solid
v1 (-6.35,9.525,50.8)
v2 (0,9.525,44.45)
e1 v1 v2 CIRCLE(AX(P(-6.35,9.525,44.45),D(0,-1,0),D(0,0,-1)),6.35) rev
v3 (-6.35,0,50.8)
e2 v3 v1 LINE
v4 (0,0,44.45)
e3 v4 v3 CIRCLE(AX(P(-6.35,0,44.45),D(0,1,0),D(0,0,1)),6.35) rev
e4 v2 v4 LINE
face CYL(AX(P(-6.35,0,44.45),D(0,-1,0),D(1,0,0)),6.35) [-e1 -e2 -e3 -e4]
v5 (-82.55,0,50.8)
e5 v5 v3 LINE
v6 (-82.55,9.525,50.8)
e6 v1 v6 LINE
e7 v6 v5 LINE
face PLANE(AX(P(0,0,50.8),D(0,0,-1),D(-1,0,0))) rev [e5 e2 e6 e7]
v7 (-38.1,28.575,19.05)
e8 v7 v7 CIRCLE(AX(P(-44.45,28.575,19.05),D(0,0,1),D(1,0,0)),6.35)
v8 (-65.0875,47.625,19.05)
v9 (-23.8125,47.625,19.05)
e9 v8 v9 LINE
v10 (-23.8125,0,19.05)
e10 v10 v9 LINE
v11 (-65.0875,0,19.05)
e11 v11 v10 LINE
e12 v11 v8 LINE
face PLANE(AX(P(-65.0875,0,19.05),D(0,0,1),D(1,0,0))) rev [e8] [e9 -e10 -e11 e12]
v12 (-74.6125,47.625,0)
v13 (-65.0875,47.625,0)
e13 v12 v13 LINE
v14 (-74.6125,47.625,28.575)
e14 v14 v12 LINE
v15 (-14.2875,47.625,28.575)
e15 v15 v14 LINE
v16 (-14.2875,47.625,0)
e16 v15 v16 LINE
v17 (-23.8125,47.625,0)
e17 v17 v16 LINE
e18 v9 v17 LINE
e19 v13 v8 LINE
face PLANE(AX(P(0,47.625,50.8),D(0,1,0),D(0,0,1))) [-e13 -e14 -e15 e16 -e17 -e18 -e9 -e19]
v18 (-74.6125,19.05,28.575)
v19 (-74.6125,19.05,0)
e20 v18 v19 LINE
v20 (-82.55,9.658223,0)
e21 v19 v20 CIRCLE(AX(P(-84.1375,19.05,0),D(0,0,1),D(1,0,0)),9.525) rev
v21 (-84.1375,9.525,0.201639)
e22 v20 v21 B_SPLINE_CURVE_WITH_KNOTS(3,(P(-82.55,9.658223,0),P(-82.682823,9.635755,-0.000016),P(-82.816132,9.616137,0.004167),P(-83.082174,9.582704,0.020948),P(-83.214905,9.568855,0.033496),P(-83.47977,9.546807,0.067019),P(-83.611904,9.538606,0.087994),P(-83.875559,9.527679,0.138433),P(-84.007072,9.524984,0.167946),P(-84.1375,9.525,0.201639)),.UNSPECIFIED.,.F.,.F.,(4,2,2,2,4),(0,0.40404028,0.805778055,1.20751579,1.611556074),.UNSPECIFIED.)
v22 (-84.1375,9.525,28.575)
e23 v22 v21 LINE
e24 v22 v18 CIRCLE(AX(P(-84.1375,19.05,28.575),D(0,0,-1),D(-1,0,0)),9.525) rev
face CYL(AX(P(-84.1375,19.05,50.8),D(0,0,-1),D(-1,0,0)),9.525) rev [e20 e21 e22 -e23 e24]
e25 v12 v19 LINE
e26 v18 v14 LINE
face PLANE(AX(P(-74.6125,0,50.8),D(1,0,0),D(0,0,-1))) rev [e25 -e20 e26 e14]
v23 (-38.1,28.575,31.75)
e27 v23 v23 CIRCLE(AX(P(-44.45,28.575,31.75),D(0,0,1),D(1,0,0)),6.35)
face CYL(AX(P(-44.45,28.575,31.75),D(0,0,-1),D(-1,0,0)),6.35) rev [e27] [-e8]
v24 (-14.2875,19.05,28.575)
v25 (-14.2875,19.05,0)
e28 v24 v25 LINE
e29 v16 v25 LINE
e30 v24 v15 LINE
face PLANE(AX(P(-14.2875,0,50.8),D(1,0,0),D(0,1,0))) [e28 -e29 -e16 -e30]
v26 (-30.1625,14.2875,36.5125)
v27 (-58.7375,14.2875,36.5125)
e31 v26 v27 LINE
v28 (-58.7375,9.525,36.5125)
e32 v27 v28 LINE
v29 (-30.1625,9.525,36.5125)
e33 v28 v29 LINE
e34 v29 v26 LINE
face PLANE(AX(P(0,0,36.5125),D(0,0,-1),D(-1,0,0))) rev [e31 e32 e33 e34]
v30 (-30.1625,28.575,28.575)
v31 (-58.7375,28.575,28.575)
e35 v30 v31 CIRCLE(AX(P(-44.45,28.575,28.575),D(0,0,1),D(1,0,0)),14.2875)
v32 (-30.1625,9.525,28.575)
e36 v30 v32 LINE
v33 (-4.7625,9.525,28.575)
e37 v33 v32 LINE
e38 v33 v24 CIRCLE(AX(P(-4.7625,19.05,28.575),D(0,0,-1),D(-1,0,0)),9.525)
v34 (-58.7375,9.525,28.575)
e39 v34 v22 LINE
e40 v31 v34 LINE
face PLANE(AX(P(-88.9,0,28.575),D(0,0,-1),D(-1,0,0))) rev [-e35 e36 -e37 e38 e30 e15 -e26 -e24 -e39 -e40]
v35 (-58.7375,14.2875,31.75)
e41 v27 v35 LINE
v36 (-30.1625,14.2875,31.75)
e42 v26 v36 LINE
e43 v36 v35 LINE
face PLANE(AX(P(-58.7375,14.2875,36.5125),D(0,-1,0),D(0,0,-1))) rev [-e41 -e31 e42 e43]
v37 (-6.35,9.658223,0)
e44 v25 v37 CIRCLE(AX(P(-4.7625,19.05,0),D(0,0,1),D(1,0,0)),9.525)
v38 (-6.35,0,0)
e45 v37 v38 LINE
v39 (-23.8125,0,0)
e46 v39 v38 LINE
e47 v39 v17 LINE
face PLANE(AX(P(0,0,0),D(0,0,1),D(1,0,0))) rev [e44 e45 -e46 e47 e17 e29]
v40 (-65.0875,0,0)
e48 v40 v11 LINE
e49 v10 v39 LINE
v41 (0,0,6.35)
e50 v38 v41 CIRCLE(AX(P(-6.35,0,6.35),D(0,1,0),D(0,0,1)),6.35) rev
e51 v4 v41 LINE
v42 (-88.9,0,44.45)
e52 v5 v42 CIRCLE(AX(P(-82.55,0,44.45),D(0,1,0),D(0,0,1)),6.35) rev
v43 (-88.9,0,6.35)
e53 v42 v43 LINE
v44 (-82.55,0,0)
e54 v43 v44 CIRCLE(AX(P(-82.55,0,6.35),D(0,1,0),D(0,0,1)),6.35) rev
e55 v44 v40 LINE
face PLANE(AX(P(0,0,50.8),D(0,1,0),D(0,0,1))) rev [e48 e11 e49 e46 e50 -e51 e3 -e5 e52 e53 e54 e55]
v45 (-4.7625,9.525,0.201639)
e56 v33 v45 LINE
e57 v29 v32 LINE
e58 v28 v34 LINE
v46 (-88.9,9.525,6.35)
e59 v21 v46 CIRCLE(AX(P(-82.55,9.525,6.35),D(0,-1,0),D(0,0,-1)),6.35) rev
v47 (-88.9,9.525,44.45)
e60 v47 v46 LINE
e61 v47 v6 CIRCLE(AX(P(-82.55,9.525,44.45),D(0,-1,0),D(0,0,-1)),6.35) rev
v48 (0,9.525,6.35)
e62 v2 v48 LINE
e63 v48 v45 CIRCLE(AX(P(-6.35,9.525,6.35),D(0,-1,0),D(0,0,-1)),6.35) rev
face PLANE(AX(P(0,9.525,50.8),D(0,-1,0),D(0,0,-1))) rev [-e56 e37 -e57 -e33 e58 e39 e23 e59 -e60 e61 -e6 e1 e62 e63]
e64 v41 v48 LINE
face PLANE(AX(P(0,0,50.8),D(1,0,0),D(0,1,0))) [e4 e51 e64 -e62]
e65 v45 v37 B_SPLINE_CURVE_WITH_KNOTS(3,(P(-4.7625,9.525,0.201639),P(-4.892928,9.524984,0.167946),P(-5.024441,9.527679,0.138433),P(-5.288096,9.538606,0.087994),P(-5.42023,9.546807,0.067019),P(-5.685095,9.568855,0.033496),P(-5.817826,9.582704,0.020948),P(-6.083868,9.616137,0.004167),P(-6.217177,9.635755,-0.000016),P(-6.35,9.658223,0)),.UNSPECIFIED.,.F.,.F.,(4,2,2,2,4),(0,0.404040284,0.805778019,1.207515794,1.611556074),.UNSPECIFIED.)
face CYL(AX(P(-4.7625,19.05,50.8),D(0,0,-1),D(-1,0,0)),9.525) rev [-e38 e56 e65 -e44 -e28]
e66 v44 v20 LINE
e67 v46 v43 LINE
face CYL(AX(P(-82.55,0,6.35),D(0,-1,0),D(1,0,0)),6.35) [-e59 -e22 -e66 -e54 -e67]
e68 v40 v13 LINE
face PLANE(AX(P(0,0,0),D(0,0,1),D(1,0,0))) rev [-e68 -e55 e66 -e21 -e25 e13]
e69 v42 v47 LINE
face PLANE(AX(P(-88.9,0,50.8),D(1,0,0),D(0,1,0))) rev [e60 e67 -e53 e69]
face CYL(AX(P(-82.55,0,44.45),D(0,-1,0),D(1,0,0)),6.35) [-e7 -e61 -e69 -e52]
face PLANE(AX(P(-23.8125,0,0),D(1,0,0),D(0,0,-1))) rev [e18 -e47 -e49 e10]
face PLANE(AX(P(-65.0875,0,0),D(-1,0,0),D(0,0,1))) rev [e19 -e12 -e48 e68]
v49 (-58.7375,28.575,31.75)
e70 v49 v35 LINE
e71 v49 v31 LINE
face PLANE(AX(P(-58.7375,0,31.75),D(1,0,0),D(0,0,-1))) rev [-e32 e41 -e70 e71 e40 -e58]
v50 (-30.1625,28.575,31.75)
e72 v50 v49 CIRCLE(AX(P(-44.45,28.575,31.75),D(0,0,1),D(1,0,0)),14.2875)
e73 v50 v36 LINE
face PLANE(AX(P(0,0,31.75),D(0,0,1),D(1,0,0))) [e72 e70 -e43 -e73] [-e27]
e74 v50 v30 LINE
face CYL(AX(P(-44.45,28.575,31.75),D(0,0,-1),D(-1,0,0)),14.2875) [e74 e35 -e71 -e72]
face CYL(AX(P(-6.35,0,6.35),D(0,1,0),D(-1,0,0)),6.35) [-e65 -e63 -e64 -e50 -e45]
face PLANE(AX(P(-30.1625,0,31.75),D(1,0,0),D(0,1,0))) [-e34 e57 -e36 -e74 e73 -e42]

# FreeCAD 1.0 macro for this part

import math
import FreeCAD as App
import Part
import Sketcher
Q = App.Units.Quantity


def edges_at(feature, points):
    """Names of the edges that pass closest to the given points."""
    edges = feature.Shape.Edges
    near = lambda p: min(range(len(edges)), key=lambda i: edges[i].distToShape(Part.Vertex(*p))[0])
    return sorted({f"Edge{near(p) + 1}" for p in points})

doc = App.newDocument("Part")
body = doc.addObject("PartDesign::Body", "Body")

# Sketch on XY plane
sketch1 = body.newObject("Sketcher::SketchObject", "Sketch")
sketch1.AttachmentSupport = (doc.getObject("XY_Plane"), [""])
sketch1.MapMode = "FlatFace"
sketch1.addGeometry([
    Part.LineSegment(App.Vector(-14.3, 47.6, 0), App.Vector(-74.6, 47.6, 0)),  # 0
    Part.LineSegment(App.Vector(-74.6, 47.6, 0), App.Vector(-74.6, 19.1, 0)),  # 1
    Part.ArcOfCircle(Part.Circle(App.Vector(-84.1, 19, 0), App.Vector(0, 0, 1), 9.5), math.radians(-90), math.radians(0)),  # 2
    Part.LineSegment(App.Vector(-84.1, 9.5, 0), App.Vector(-88.9, 9.5, 0)),  # 3
    Part.LineSegment(App.Vector(-88.9, 9.5, 0), App.Vector(-88.9, 0, 0)),  # 4
    Part.LineSegment(App.Vector(-88.9, 0, 0), App.Vector(0, 0, 0)),  # 5
    Part.LineSegment(App.Vector(0, 0, 0), App.Vector(0, 9.5, 0)),  # 6
    Part.LineSegment(App.Vector(0, 9.5, 0), App.Vector(-4.8, 9.5, 0)),  # 7
    Part.ArcOfCircle(Part.Circle(App.Vector(-4.8, 19, 0), App.Vector(0, 0, 1), 9.5), math.radians(180), math.radians(270)),  # 8
    Part.LineSegment(App.Vector(-14.3, 19.1, 0), App.Vector(-14.3, 47.6, 0)),  # 9
], False)
sketch1.addConstraint([
    Sketcher.Constraint("Coincident", 0, 2, 1, 1),
    Sketcher.Constraint("Tangent", 1, 2, 2, 2),
    Sketcher.Constraint("Tangent", 2, 1, 3, 1),
    Sketcher.Constraint("Coincident", 3, 2, 4, 1),
    Sketcher.Constraint("Coincident", 4, 2, 5, 1),
    Sketcher.Constraint("Coincident", 5, 2, 6, 1),
    Sketcher.Constraint("Coincident", 6, 2, 7, 1),
    Sketcher.Constraint("Tangent", 7, 2, 8, 2),
    Sketcher.Constraint("Tangent", 8, 1, 9, 1),
    Sketcher.Constraint("Coincident", 9, 2, 0, 1),
    Sketcher.Constraint("Horizontal", 0),
    Sketcher.Constraint("Vertical", 1),
    Sketcher.Constraint("Horizontal", 3),
    Sketcher.Constraint("Vertical", 4),
    Sketcher.Constraint("Horizontal", 5),
    Sketcher.Constraint("Vertical", 6),
    Sketcher.Constraint("Horizontal", 7),
    Sketcher.Constraint("Vertical", 9),
    Sketcher.Constraint("Coincident", 5, 2, -1, 1),
    Sketcher.Constraint("Equal", 2, 8),
    Sketcher.Constraint("Horizontal", 2, 3, 8, 3),
    Sketcher.Constraint("Equal", 3, 7),
    Sketcher.Constraint("DistanceX", 5, 1, 5, 2, Q("3.5 in")),
    Sketcher.Constraint("Radius", 2, Q("0.375 in")),
    Sketcher.Constraint("DistanceY", 2, 1, 0, 2, Q("1.5 in")),
    Sketcher.Constraint("DistanceX", 0, 2, 0, 1, Q("2.375 in")),
    Sketcher.Constraint("DistanceY", 4, 2, 4, 1, Q("0.375 in")),
])
pad1 = body.newObject("PartDesign::Pad", "Pad")
pad1.Profile = sketch1
pad1.Length = Q("2 in")

# Sketch on XZ plane
sketch2 = body.newObject("Sketcher::SketchObject", "Sketch001")
sketch2.AttachmentSupport = (doc.getObject("XZ_Plane"), [""])
sketch2.MapMode = "FlatFace"
sketch2.AttachmentOffset = App.Placement(App.Vector(0, 0, -1.875 * 25.4), App.Rotation())
sketch2.addGeometry([
    Part.LineSegment(App.Vector(-65, 0, 0), App.Vector(-65, 19, 0)),  # 0
    Part.LineSegment(App.Vector(-65, 19, 0), App.Vector(-24, 19, 0)),  # 1
    Part.LineSegment(App.Vector(-24, 19, 0), App.Vector(-24, 0, 0)),  # 2
    Part.LineSegment(App.Vector(-24, 0, 0), App.Vector(-65, 0, 0)),  # 3
    Part.LineSegment(App.Vector(-89, 29, 0), App.Vector(-89, 51, 0)),  # 4
    Part.LineSegment(App.Vector(-89, 51, 0), App.Vector(0, 51, 0)),  # 5
    Part.LineSegment(App.Vector(0, 51, 0), App.Vector(0, 29, 0)),  # 6
    Part.LineSegment(App.Vector(0, 29, 0), App.Vector(-89, 29, 0)),  # 7
], False)
sketch2.addConstraint([
    Sketcher.Constraint("Coincident", 0, 2, 1, 1),
    Sketcher.Constraint("Coincident", 1, 2, 2, 1),
    Sketcher.Constraint("Coincident", 2, 2, 3, 1),
    Sketcher.Constraint("Coincident", 3, 2, 0, 1),
    Sketcher.Constraint("Coincident", 4, 2, 5, 1),
    Sketcher.Constraint("Coincident", 5, 2, 6, 1),
    Sketcher.Constraint("Coincident", 6, 2, 7, 1),
    Sketcher.Constraint("Coincident", 7, 2, 4, 1),
    Sketcher.Constraint("Vertical", 0),
    Sketcher.Constraint("Horizontal", 1),
    Sketcher.Constraint("Vertical", 2),
    Sketcher.Constraint("Horizontal", 3),
    Sketcher.Constraint("Vertical", 4),
    Sketcher.Constraint("Horizontal", 5),
    Sketcher.Constraint("Vertical", 6),
    Sketcher.Constraint("Horizontal", 7),
    Sketcher.Constraint("PointOnObject", 2, 2, -1),
    Sketcher.Constraint("PointOnObject", 5, 2, -2),
    Sketcher.Constraint("DistanceX", 5, 1, 5, 2, Q("3.5 in")),
    Sketcher.Constraint("DistanceY", -1, 1, 4, 2, Q("2 in")),
    Sketcher.Constraint("DistanceY", 0, 1, 0, 2, Q("0.75 in")),
    Sketcher.Constraint("DistanceX", 1, 1, 1, 2, Q("1.625 in")),
    Sketcher.Constraint("DistanceY", 4, 1, 4, 2, Q("0.875 in")),
    Sketcher.Constraint("DistanceX", 0, 2, -1, 1, Q("2.5625 in")),
])
pocket1 = body.newObject("PartDesign::Pocket", "Pocket")
pocket1.Profile = sketch2
pocket1.Type = "ThroughAll"
pocket1.Reversed = True

# Sketch on XY plane
sketch3 = body.newObject("Sketcher::SketchObject", "Sketch002")
sketch3.AttachmentSupport = (doc.getObject("XY_Plane"), [""])
sketch3.MapMode = "FlatFace"
sketch3.AttachmentOffset = App.Placement(App.Vector(0, 0, 1.125 * 25.4), App.Rotation())
sketch3.addGeometry([
    Part.LineSegment(App.Vector(-59, 29, 0), App.Vector(-59, 10, 0)),  # 0
    Part.LineSegment(App.Vector(-59, 10, 0), App.Vector(-30, 10, 0)),  # 1
    Part.LineSegment(App.Vector(-30, 10, 0), App.Vector(-30, 29, 0)),  # 2
    Part.ArcOfCircle(Part.Circle(App.Vector(-44, 29, 0), App.Vector(0, 0, 1), 14), math.radians(0), math.radians(180)),  # 3
    Part.Circle(App.Vector(-44, 29, 0), App.Vector(0, 0, 1), 6),  # 4
], False)
sketch3.addConstraint([
    Sketcher.Constraint("Coincident", 0, 2, 1, 1),
    Sketcher.Constraint("Coincident", 1, 2, 2, 1),
    Sketcher.Constraint("Tangent", 2, 2, 3, 1),
    Sketcher.Constraint("Tangent", 3, 2, 0, 1),
    Sketcher.Constraint("Vertical", 0),
    Sketcher.Constraint("Horizontal", 1),
    Sketcher.Constraint("Vertical", 2),
    Sketcher.Constraint("Coincident", 4, 3, 3, 3),
    Sketcher.Constraint("Diameter", 4, Q("0.5 in")),
    Sketcher.Constraint("Radius", 3, Q("0.5625 in")),
    Sketcher.Constraint("DistanceY", 0, 2, 0, 1, Q("0.75 in")),
    Sketcher.Constraint("DistanceX", 3, 3, -1, 1, Q("1.75 in")),
    Sketcher.Constraint("DistanceY", -1, 1, 3, 3, Q("1.125 in")),
])
pad2 = body.newObject("PartDesign::Pad", "Pad001")
pad2.Profile = sketch3
pad2.Length = Q("0.125 in")

# Sketch on XY plane
sketch4 = body.newObject("Sketcher::SketchObject", "Sketch003")
sketch4.AttachmentSupport = (doc.getObject("XY_Plane"), [""])
sketch4.MapMode = "FlatFace"
sketch4.AttachmentOffset = App.Placement(App.Vector(0, 0, 1.125 * 25.4), App.Rotation())
sketch4.addGeometry([
    Part.LineSegment(App.Vector(-89, 10, 0), App.Vector(-89, 0, 0)),
    Part.LineSegment(App.Vector(-89, 0, 0), App.Vector(0, 0, 0)),
    Part.LineSegment(App.Vector(0, 0, 0), App.Vector(0, 10, 0)),
    Part.LineSegment(App.Vector(0, 10, 0), App.Vector(-89, 10, 0)),
], False)
sketch4.addConstraint([
    Sketcher.Constraint("Coincident", 0, 2, 1, 1),
    Sketcher.Constraint("Coincident", 1, 2, 2, 1),
    Sketcher.Constraint("Coincident", 2, 2, 3, 1),
    Sketcher.Constraint("Coincident", 3, 2, 0, 1),
    Sketcher.Constraint("Vertical", 0),
    Sketcher.Constraint("Horizontal", 1),
    Sketcher.Constraint("Vertical", 2),
    Sketcher.Constraint("Horizontal", 3),
    Sketcher.Constraint("Coincident", 1, 2, -1, 1),
    Sketcher.Constraint("DistanceX", 1, 1, 1, 2, Q("3.5 in")),
    Sketcher.Constraint("DistanceY", 0, 2, 0, 1, Q("0.375 in")),
])
pad3 = body.newObject("PartDesign::Pad", "Pad002")
pad3.Profile = sketch4
pad3.Length = Q("0.875 in")

# Sketch on XY plane
sketch5 = body.newObject("Sketcher::SketchObject", "Sketch004")
sketch5.AttachmentSupport = (doc.getObject("XY_Plane"), [""])
sketch5.MapMode = "FlatFace"
sketch5.AttachmentOffset = App.Placement(App.Vector(0, 0, 1.25 * 25.4), App.Rotation())
sketch5.addGeometry([
    Part.LineSegment(App.Vector(-58.7, 14.3, 0), App.Vector(-58.7, 9.5, 0)),
    Part.LineSegment(App.Vector(-58.7, 9.5, 0), App.Vector(-30.2, 9.5, 0)),
    Part.LineSegment(App.Vector(-30.2, 9.5, 0), App.Vector(-30.2, 14.3, 0)),
    Part.LineSegment(App.Vector(-30.2, 14.3, 0), App.Vector(-58.7, 14.3, 0)),
], False)
sketch5.addConstraint([
    Sketcher.Constraint("Coincident", 0, 2, 1, 1),
    Sketcher.Constraint("Coincident", 1, 2, 2, 1),
    Sketcher.Constraint("Coincident", 2, 2, 3, 1),
    Sketcher.Constraint("Coincident", 3, 2, 0, 1),
    Sketcher.Constraint("Vertical", 0),
    Sketcher.Constraint("Horizontal", 1),
    Sketcher.Constraint("Vertical", 2),
    Sketcher.Constraint("Horizontal", 3),
    Sketcher.Constraint("DistanceX", 1, 1, 1, 2, Q("1.125 in")),
    Sketcher.Constraint("DistanceY", 0, 2, 0, 1, Q("0.1875 in")),
    Sketcher.Constraint("DistanceX", 0, 2, -1, 1, Q("2.3125 in")),
    Sketcher.Constraint("DistanceY", -1, 1, 0, 2, Q("0.375 in")),
])
pad4 = body.newObject("PartDesign::Pad", "Pad003")
pad4.Profile = sketch5
pad4.Length = Q("0.1875 in")
doc.recompute()

fillet = body.newObject("PartDesign::Fillet", "Fillet")
fillet.Base = (pad4, edges_at(pad4, [
    (-88.9, 4.763, 0),
    (-88.9, 4.763, 50.8),
    (0, 4.763, 50.8),
    (0, 4.763, 0),
]))
fillet.Radius = Q("0.25 in")

# Sketch on XY plane
sketch6 = body.newObject("Sketcher::SketchObject", "Sketch005")
sketch6.AttachmentSupport = (doc.getObject("XY_Plane"), [""])
sketch6.MapMode = "FlatFace"
sketch6.AttachmentOffset = App.Placement(App.Vector(0, 0, 1.125 * 25.4), App.Rotation())
sketch6.addGeometry(Part.Circle(App.Vector(-44, 29, 0), App.Vector(0, 0, 1), 6), False)
sketch6.addConstraint([
    Sketcher.Constraint("Diameter", 0, Q("0.5 in")),
    Sketcher.Constraint("DistanceX", 0, 3, -1, 1, Q("1.75 in")),
    Sketcher.Constraint("DistanceY", -1, 1, 0, 3, Q("1.125 in")),
])
pocket2 = body.newObject("PartDesign::Pocket", "Pocket001")
pocket2.Profile = sketch6
pocket2.Type = "ThroughAll"

doc.recompute()
